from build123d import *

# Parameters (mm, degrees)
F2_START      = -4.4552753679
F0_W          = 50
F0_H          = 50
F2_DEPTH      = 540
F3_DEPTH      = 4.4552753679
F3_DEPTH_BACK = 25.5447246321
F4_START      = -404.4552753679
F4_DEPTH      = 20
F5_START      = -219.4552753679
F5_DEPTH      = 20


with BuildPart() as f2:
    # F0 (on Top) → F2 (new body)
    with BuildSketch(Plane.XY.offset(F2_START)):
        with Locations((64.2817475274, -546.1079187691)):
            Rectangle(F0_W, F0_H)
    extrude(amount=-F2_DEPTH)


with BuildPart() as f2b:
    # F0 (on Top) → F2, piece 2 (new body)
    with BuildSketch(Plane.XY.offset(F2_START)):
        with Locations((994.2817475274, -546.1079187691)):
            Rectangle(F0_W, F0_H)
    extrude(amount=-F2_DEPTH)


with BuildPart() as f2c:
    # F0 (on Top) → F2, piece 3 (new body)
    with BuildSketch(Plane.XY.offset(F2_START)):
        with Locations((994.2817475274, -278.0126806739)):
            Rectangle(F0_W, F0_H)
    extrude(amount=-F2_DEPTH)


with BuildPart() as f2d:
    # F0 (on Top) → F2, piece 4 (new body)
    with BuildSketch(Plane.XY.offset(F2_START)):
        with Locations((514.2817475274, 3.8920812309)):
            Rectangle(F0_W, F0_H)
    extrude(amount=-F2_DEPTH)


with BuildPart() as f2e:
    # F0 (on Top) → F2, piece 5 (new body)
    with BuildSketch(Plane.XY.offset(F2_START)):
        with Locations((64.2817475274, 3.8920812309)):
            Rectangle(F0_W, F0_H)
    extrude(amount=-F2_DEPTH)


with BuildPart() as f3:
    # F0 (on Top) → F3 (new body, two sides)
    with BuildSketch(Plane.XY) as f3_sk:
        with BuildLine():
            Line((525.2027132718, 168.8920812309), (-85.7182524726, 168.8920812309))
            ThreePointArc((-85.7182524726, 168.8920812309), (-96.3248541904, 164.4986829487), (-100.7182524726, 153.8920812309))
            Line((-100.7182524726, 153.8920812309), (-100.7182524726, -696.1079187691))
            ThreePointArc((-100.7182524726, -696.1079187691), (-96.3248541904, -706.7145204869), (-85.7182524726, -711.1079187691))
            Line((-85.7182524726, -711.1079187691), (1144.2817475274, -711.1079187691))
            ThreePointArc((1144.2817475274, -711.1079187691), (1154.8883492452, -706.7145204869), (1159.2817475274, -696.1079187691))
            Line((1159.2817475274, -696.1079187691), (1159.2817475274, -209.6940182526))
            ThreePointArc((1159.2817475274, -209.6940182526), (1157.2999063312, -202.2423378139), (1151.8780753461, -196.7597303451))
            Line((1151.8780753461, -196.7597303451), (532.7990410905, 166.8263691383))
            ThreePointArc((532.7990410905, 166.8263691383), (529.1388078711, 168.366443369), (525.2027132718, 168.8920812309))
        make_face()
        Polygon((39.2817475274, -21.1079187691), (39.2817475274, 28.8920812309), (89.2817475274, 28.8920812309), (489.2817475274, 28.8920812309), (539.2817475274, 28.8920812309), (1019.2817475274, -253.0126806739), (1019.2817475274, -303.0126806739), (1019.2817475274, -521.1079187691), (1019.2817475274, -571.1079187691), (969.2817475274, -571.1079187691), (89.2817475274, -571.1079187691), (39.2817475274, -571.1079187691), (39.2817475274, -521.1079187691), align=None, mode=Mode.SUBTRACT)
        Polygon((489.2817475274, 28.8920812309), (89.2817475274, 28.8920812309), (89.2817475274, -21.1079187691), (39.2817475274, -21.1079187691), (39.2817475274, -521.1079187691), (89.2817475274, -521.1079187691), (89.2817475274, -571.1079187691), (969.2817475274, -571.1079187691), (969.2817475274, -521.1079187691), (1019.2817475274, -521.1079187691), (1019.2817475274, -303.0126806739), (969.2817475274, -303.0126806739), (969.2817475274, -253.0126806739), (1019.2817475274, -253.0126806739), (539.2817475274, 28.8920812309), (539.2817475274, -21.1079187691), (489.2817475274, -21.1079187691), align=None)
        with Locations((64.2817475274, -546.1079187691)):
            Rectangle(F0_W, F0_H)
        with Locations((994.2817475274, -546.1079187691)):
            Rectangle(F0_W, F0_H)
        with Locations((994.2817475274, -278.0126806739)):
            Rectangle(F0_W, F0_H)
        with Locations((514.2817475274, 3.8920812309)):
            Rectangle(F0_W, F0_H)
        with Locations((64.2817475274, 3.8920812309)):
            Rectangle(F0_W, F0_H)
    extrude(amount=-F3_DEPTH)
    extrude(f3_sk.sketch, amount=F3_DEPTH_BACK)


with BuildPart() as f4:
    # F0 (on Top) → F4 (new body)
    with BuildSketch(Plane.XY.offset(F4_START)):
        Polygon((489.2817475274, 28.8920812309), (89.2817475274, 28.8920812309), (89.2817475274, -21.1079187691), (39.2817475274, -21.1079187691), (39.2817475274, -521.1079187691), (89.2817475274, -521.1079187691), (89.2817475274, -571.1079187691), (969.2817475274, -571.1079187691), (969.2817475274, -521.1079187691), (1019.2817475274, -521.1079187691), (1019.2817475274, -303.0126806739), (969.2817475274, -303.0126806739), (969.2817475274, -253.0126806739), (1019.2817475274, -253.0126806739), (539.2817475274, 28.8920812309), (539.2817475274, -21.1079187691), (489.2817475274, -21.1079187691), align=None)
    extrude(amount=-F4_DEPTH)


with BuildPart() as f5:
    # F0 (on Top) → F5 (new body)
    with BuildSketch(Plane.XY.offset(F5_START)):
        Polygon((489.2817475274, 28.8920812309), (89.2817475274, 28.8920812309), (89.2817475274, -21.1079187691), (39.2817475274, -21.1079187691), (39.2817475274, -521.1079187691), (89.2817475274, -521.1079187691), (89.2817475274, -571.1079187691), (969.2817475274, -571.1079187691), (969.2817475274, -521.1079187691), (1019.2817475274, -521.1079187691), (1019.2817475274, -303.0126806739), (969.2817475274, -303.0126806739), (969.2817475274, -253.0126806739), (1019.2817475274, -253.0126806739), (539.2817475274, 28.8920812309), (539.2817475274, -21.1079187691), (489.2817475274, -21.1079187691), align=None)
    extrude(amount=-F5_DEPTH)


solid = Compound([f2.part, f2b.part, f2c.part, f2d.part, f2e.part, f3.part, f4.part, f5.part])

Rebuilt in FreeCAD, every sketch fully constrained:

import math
import FreeCAD as App
import Part
import Sketcher
from FreeCAD import Vector


def add_polygon(sketch, points):
    """Adds a closed chain of lines whose ends are joined by coincident constraints."""
    first, n = sketch.GeometryCount, len(points)
    for a, b in zip(points, points[1:] + points[:1]):
        sketch.addGeometry(Part.LineSegment(App.Vector(*a, 0), App.Vector(*b, 0)), False)
    for i in range(n):
        sketch.addConstraint(Sketcher.Constraint("Coincident", first + i, 2, first + (i + 1) % n, 1))

doc = App.newDocument("Part")
body = doc.addObject("PartDesign::Body", "Body")

# Sketch on XY plane
sketch1 = doc.addObject("Sketcher::SketchObject", "Sketch")
body.addObject(sketch1)
sketch1.AttachmentSupport = (doc.XY_Plane, [""])
sketch1.MapMode = "FlatFace"
sketch1.AttachmentOffset = App.Placement(Vector(0, 0, -4.455275), App.Rotation())
add_polygon(sketch1, [(39, -521), (39, -571), (89, -571), (89, -521)])  # lines 0-3
sketch1.addConstraint(Sketcher.Constraint("Vertical", 0))
sketch1.addConstraint(Sketcher.Constraint("Horizontal", 1))
sketch1.addConstraint(Sketcher.Constraint("Vertical", 2))
sketch1.addConstraint(Sketcher.Constraint("Horizontal", 3))
sketch1.addConstraint(Sketcher.Constraint("Equal", 3, 0))
sketch1.addConstraint(Sketcher.Constraint("DistanceX", 1, 1, 1, 2, 50.0))
sketch1.addConstraint(Sketcher.Constraint("DistanceY", 0, 2, -1, 1, 571.107919))
sketch1.addConstraint(Sketcher.Constraint("DistanceX", -1, 1, 0, 2, 39.281748))
pad1 = doc.addObject("PartDesign::Pad", "Pad")
body.addObject(pad1)
pad1.Profile = sketch1
pad1.Length = 540
pad1.Reversed = True
body2 = doc.addObject("PartDesign::Body", "Body001")

# Sketch on XY plane
sketch2 = doc.addObject("Sketcher::SketchObject", "Sketch001")
body2.addObject(sketch2)
sketch2.AttachmentSupport = (doc.getObject("XY_Plane001"), [""])
sketch2.MapMode = "FlatFace"
sketch2.AttachmentOffset = App.Placement(Vector(0, 0, -4.455275), App.Rotation())
add_polygon(sketch2, [(969, -521), (969, -571), (1019, -571), (1019, -521)])  # lines 0-3
sketch2.addConstraint(Sketcher.Constraint("Vertical", 0))
sketch2.addConstraint(Sketcher.Constraint("Horizontal", 1))
sketch2.addConstraint(Sketcher.Constraint("Vertical", 2))
sketch2.addConstraint(Sketcher.Constraint("Horizontal", 3))
sketch2.addConstraint(Sketcher.Constraint("Equal", 3, 0))
sketch2.addConstraint(Sketcher.Constraint("DistanceX", 1, 1, 1, 2, 50.0))
sketch2.addConstraint(Sketcher.Constraint("DistanceY", 0, 2, -1, 1, 571.107919))
sketch2.addConstraint(Sketcher.Constraint("DistanceX", -1, 1, 0, 2, 969.281748))
pad2 = doc.addObject("PartDesign::Pad", "Pad001")
body2.addObject(pad2)
pad2.Profile = sketch2
pad2.Length = 540
pad2.Reversed = True
body3 = doc.addObject("PartDesign::Body", "Body002")

# Sketch on XY plane
sketch3 = doc.addObject("Sketcher::SketchObject", "Sketch002")
body3.addObject(sketch3)
sketch3.AttachmentSupport = (doc.getObject("XY_Plane002"), [""])
sketch3.MapMode = "FlatFace"
sketch3.AttachmentOffset = App.Placement(Vector(0, 0, -4.455275), App.Rotation())
add_polygon(sketch3, [(969, -253), (969, -303), (1019, -303), (1019, -253)])  # lines 0-3
sketch3.addConstraint(Sketcher.Constraint("Vertical", 0))
sketch3.addConstraint(Sketcher.Constraint("Horizontal", 1))
sketch3.addConstraint(Sketcher.Constraint("Vertical", 2))
sketch3.addConstraint(Sketcher.Constraint("Horizontal", 3))
sketch3.addConstraint(Sketcher.Constraint("Equal", 3, 0))
sketch3.addConstraint(Sketcher.Constraint("DistanceX", 1, 1, 1, 2, 50.0))
sketch3.addConstraint(Sketcher.Constraint("DistanceY", 0, 2, -1, 1, 303.012681))
sketch3.addConstraint(Sketcher.Constraint("DistanceX", -1, 1, 0, 2, 969.281748))
pad3 = doc.addObject("PartDesign::Pad", "Pad002")
body3.addObject(pad3)
pad3.Profile = sketch3
pad3.Length = 540
pad3.Reversed = True
body4 = doc.addObject("PartDesign::Body", "Body003")

# Sketch on XY plane
sketch4 = doc.addObject("Sketcher::SketchObject", "Sketch003")
body4.addObject(sketch4)
sketch4.AttachmentSupport = (doc.getObject("XY_Plane003"), [""])
sketch4.MapMode = "FlatFace"
sketch4.AttachmentOffset = App.Placement(Vector(0, 0, -4.455275), App.Rotation())
add_polygon(sketch4, [(489, 29), (489, -21), (539, -21), (539, 29)])  # lines 0-3
sketch4.addConstraint(Sketcher.Constraint("Vertical", 0))
sketch4.addConstraint(Sketcher.Constraint("Horizontal", 1))
sketch4.addConstraint(Sketcher.Constraint("Vertical", 2))
sketch4.addConstraint(Sketcher.Constraint("Horizontal", 3))
sketch4.addConstraint(Sketcher.Constraint("Equal", 3, 0))
sketch4.addConstraint(Sketcher.Constraint("DistanceX", 1, 1, 1, 2, 50.0))
sketch4.addConstraint(Sketcher.Constraint("DistanceY", 0, 2, -1, 1, 21.107919))
sketch4.addConstraint(Sketcher.Constraint("DistanceX", -1, 1, 0, 2, 489.281748))
pad4 = doc.addObject("PartDesign::Pad", "Pad003")
body4.addObject(pad4)
pad4.Profile = sketch4
pad4.Length = 540
pad4.Reversed = True
body5 = doc.addObject("PartDesign::Body", "Body004")

# Sketch on XY plane
sketch5 = doc.addObject("Sketcher::SketchObject", "Sketch004")
body5.addObject(sketch5)
sketch5.AttachmentSupport = (doc.getObject("XY_Plane004"), [""])
sketch5.MapMode = "FlatFace"
sketch5.AttachmentOffset = App.Placement(Vector(0, 0, -4.455275), App.Rotation())
add_polygon(sketch5, [(39, 29), (39, -21), (89, -21), (89, 29)])  # lines 0-3
sketch5.addConstraint(Sketcher.Constraint("Vertical", 0))
sketch5.addConstraint(Sketcher.Constraint("Horizontal", 1))
sketch5.addConstraint(Sketcher.Constraint("Vertical", 2))
sketch5.addConstraint(Sketcher.Constraint("Horizontal", 3))
sketch5.addConstraint(Sketcher.Constraint("Equal", 3, 0))
sketch5.addConstraint(Sketcher.Constraint("DistanceX", 1, 1, 1, 2, 50.0))
sketch5.addConstraint(Sketcher.Constraint("DistanceY", 0, 2, -1, 1, 21.107919))
sketch5.addConstraint(Sketcher.Constraint("DistanceX", -1, 1, 0, 2, 39.281748))
pad5 = doc.addObject("PartDesign::Pad", "Pad004")
body5.addObject(pad5)
pad5.Profile = sketch5
pad5.Length = 540
pad5.Reversed = True
body6 = doc.addObject("PartDesign::Body", "Body005")

# Sketch on XY plane
sketch6 = doc.addObject("Sketcher::SketchObject", "Sketch005")
body6.addObject(sketch6)
sketch6.AttachmentSupport = (doc.getObject("XY_Plane005"), [""])
sketch6.MapMode = "FlatFace"
sketch6.addGeometry(Part.LineSegment(Vector(525, 169, 0), Vector(-86, 169, 0)), False)
sketch6.addGeometry(Part.ArcOfCircle(Part.Circle(Vector(-86, 154, 0), Vector(0, 0, 1), 15), math.radians(90), math.radians(180)), False)
sketch6.addGeometry(Part.LineSegment(Vector(-101, 154, 0), Vector(-101, -696, 0)), False)
sketch6.addGeometry(Part.ArcOfCircle(Part.Circle(Vector(-86, -696, 0), Vector(0, 0, 1), 15), math.radians(180), math.radians(270)), False)
sketch6.addGeometry(Part.LineSegment(Vector(-86, -711, 0), Vector(1144, -711, 0)), False)
sketch6.addGeometry(Part.ArcOfCircle(Part.Circle(Vector(1144, -696, 0), Vector(0, 0, 1), 15), math.radians(-90), math.radians(0)), False)
sketch6.addGeometry(Part.LineSegment(Vector(1159, -696, 0), Vector(1159, -210, 0)), False)
sketch6.addGeometry(Part.ArcOfCircle(Part.Circle(Vector(1144, -210, 0), Vector(0, 0, 1), 15), math.radians(0), math.radians(60)), False)
sketch6.addGeometry(Part.LineSegment(Vector(1152, -197, 0), Vector(533, 167, 0)), False)
sketch6.addGeometry(Part.ArcOfCircle(Part.Circle(Vector(525, 154, 0), Vector(0, 0, 1), 15), math.radians(60), math.radians(90)), False)
sketch6.addConstraint(Sketcher.Constraint("Tangent", 0, 2, 1, 1))
sketch6.addConstraint(Sketcher.Constraint("Tangent", 1, 2, 2, 1))
sketch6.addConstraint(Sketcher.Constraint("Tangent", 2, 2, 3, 1))
sketch6.addConstraint(Sketcher.Constraint("Tangent", 3, 2, 4, 1))
sketch6.addConstraint(Sketcher.Constraint("Tangent", 4, 2, 5, 1))
sketch6.addConstraint(Sketcher.Constraint("Tangent", 5, 2, 6, 1))
sketch6.addConstraint(Sketcher.Constraint("Tangent", 6, 2, 7, 1))
sketch6.addConstraint(Sketcher.Constraint("Tangent", 7, 2, 8, 1))
sketch6.addConstraint(Sketcher.Constraint("Tangent", 8, 2, 9, 1))
sketch6.addConstraint(Sketcher.Constraint("Tangent", 9, 2, 0, 1))
sketch6.addConstraint(Sketcher.Constraint("Horizontal", 0))
sketch6.addConstraint(Sketcher.Constraint("Vertical", 2))
sketch6.addConstraint(Sketcher.Constraint("Horizontal", 4))
sketch6.addConstraint(Sketcher.Constraint("Vertical", 6))
sketch6.addConstraint(Sketcher.Constraint("Equal", 1, 3))
sketch6.addConstraint(Sketcher.Constraint("Equal", 3, 5))
sketch6.addConstraint(Sketcher.Constraint("Equal", 5, 7))
sketch6.addConstraint(Sketcher.Constraint("Equal", 7, 9))
sketch6.addConstraint(Sketcher.Constraint("Radius", 1, 15.0))
sketch6.addConstraint(Sketcher.Constraint("DistanceX", 4, 1, 4, 2, 1230.0))
sketch6.addConstraint(Sketcher.Constraint("DistanceY", 2, 2, 2, 1, 850.0))
sketch6.addConstraint(Sketcher.Constraint("DistanceY", 6, 1, 6, 2, 486.413901))
sketch6.addConstraint(Sketcher.Constraint("DistanceX", 0, 2, 0, 1, 610.920966))
sketch6.addConstraint(Sketcher.Constraint("DistanceY", -1, 1, 1, 3, 153.892081))
sketch6.addConstraint(Sketcher.Constraint("DistanceX", -1, 1, 8, 2, 532.799041))
pad6 = doc.addObject("PartDesign::Pad", "Pad005")
body6.addObject(pad6)
pad6.Profile = sketch6
pad6.Type = "TwoLengths"
pad6.Length = 4.455275
pad6.Length2 = 25.544725
pad6.Reversed = True
body7 = doc.addObject("PartDesign::Body", "Body006")

# Sketch on XY plane
sketch7 = doc.addObject("Sketcher::SketchObject", "Sketch006")
body7.addObject(sketch7)
sketch7.AttachmentSupport = (doc.getObject("XY_Plane006"), [""])
sketch7.MapMode = "FlatFace"
sketch7.AttachmentOffset = App.Placement(Vector(0, 0, -404.455275), App.Rotation())
add_polygon(sketch7, [(489, 29), (89, 29), (89, -21), (39, -21), (39, -521), (89, -521), (89, -571), (969, -571), (969, -521), (1019, -521), (1019, -303), (969, -303), (969, -253), (1019, -253), (539, 29), (539, -21), (489, -21)])  # lines 0-16
sketch7.addConstraint(Sketcher.Constraint("Horizontal", 0))
sketch7.addConstraint(Sketcher.Constraint("Vertical", 1))
sketch7.addConstraint(Sketcher.Constraint("Horizontal", 2))
sketch7.addConstraint(Sketcher.Constraint("Vertical", 3))
sketch7.addConstraint(Sketcher.Constraint("Horizontal", 4))
sketch7.addConstraint(Sketcher.Constraint("Vertical", 5))
sketch7.addConstraint(Sketcher.Constraint("Horizontal", 6))
sketch7.addConstraint(Sketcher.Constraint("Vertical", 7))
sketch7.addConstraint(Sketcher.Constraint("Horizontal", 8))
sketch7.addConstraint(Sketcher.Constraint("Vertical", 9))
sketch7.addConstraint(Sketcher.Constraint("Horizontal", 10))
sketch7.addConstraint(Sketcher.Constraint("Vertical", 11))
sketch7.addConstraint(Sketcher.Constraint("Horizontal", 12))
sketch7.addConstraint(Sketcher.Constraint("Vertical", 14))
sketch7.addConstraint(Sketcher.Constraint("Horizontal", 15))
sketch7.addConstraint(Sketcher.Constraint("Vertical", 16))
sketch7.addConstraint(Sketcher.Constraint("Horizontal", 4, 2, 7, 2))
sketch7.addConstraint(Sketcher.Constraint("Horizontal", 0, 2, 13, 2))
sketch7.addConstraint(Sketcher.Constraint("Horizontal", 2, 2, 14, 2))
sketch7.addConstraint(Sketcher.Constraint("Vertical", 1, 2, 4, 2))
sketch7.addConstraint(Sketcher.Constraint("Vertical", 7, 2, 10, 2))
sketch7.addConstraint(Sketcher.Constraint("Vertical", 9, 2, 12, 2))
sketch7.addConstraint(Sketcher.Constraint("Equal", 4, 8))
sketch7.addConstraint(Sketcher.Constraint("Equal", 12, 15))
sketch7.addConstraint(Sketcher.Constraint("Equal", 15, 1))
sketch7.addConstraint(Sketcher.Constraint("Equal", 1, 5))
sketch7.addConstraint(Sketcher.Constraint("Equal", 7, 11))
sketch7.addConstraint(Sketcher.Constraint("DistanceX", 0, 2, 0, 1, 400.0))
sketch7.addConstraint(Sketcher.Constraint("DistanceX", 2, 2, 2, 1, 50.0))
sketch7.addConstraint(Sketcher.Constraint("DistanceX", 6, 1, 6, 2, 880.0))
sketch7.addConstraint(Sketcher.Constraint("DistanceY", 3, 2, 3, 1, 500.0))
sketch7.addConstraint(Sketcher.Constraint("DistanceY", 9, 1, 9, 2, 218.095238))
sketch7.addConstraint(Sketcher.Constraint("DistanceY", -1, 1, 0, 2, 28.892081))
sketch7.addConstraint(Sketcher.Constraint("DistanceX", -1, 1, 0, 2, 89.281748))
pad7 = doc.addObject("PartDesign::Pad", "Pad006")
body7.addObject(pad7)
pad7.Profile = sketch7
pad7.Length = 20
pad7.Reversed = True
body8 = doc.addObject("PartDesign::Body", "Body007")

# Sketch on XY plane
sketch8 = doc.addObject("Sketcher::SketchObject", "Sketch007")
body8.addObject(sketch8)
sketch8.AttachmentSupport = (doc.getObject("XY_Plane007"), [""])
sketch8.MapMode = "FlatFace"
sketch8.AttachmentOffset = App.Placement(Vector(0, 0, -219.455275), App.Rotation())
add_polygon(sketch8, [(489, 29), (89, 29), (89, -21), (39, -21), (39, -521), (89, -521), (89, -571), (969, -571), (969, -521), (1019, -521), (1019, -303), (969, -303), (969, -253), (1019, -253), (539, 29), (539, -21), (489, -21)])  # lines 0-16
sketch8.addConstraint(Sketcher.Constraint("Horizontal", 0))
sketch8.addConstraint(Sketcher.Constraint("Vertical", 1))
sketch8.addConstraint(Sketcher.Constraint("Horizontal", 2))
sketch8.addConstraint(Sketcher.Constraint("Vertical", 3))
sketch8.addConstraint(Sketcher.Constraint("Horizontal", 4))
sketch8.addConstraint(Sketcher.Constraint("Vertical", 5))
sketch8.addConstraint(Sketcher.Constraint("Horizontal", 6))
sketch8.addConstraint(Sketcher.Constraint("Vertical", 7))
sketch8.addConstraint(Sketcher.Constraint("Horizontal", 8))
sketch8.addConstraint(Sketcher.Constraint("Vertical", 9))
sketch8.addConstraint(Sketcher.Constraint("Horizontal", 10))
sketch8.addConstraint(Sketcher.Constraint("Vertical", 11))
sketch8.addConstraint(Sketcher.Constraint("Horizontal", 12))
sketch8.addConstraint(Sketcher.Constraint("Vertical", 14))
sketch8.addConstraint(Sketcher.Constraint("Horizontal", 15))
sketch8.addConstraint(Sketcher.Constraint("Vertical", 16))
sketch8.addConstraint(Sketcher.Constraint("Horizontal", 4, 2, 7, 2))
sketch8.addConstraint(Sketcher.Constraint("Horizontal", 0, 2, 13, 2))
sketch8.addConstraint(Sketcher.Constraint("Horizontal", 2, 2, 14, 2))
sketch8.addConstraint(Sketcher.Constraint("Vertical", 1, 2, 4, 2))
sketch8.addConstraint(Sketcher.Constraint("Vertical", 7, 2, 10, 2))
sketch8.addConstraint(Sketcher.Constraint("Vertical", 9, 2, 12, 2))
sketch8.addConstraint(Sketcher.Constraint("Equal", 4, 8))
sketch8.addConstraint(Sketcher.Constraint("Equal", 12, 15))
sketch8.addConstraint(Sketcher.Constraint("Equal", 15, 1))
sketch8.addConstraint(Sketcher.Constraint("Equal", 1, 5))
sketch8.addConstraint(Sketcher.Constraint("Equal", 7, 11))
sketch8.addConstraint(Sketcher.Constraint("DistanceX", 0, 2, 0, 1, 400.0))
sketch8.addConstraint(Sketcher.Constraint("DistanceX", 2, 2, 2, 1, 50.0))
sketch8.addConstraint(Sketcher.Constraint("DistanceX", 6, 1, 6, 2, 880.0))
sketch8.addConstraint(Sketcher.Constraint("DistanceY", 3, 2, 3, 1, 500.0))
sketch8.addConstraint(Sketcher.Constraint("DistanceY", 9, 1, 9, 2, 218.095238))
sketch8.addConstraint(Sketcher.Constraint("DistanceY", -1, 1, 0, 2, 28.892081))
sketch8.addConstraint(Sketcher.Constraint("DistanceX", -1, 1, 0, 2, 89.281748))
pad8 = doc.addObject("PartDesign::Pad", "Pad007")
body8.addObject(pad8)
pad8.Profile = sketch8
pad8.Length = 20
pad8.Reversed = True

doc.recompute()
